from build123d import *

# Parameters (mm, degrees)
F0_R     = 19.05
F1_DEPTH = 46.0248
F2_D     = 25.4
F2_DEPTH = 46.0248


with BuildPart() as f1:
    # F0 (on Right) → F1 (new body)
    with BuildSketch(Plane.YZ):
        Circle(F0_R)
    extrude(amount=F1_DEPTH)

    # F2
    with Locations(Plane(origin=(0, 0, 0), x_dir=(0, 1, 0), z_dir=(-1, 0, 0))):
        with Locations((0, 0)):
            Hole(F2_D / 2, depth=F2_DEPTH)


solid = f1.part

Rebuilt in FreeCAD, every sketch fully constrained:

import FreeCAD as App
import Part
import Sketcher
from FreeCAD import Vector
Q = App.Units.Quantity

doc = App.newDocument("Part")
body = doc.addObject("PartDesign::Body", "Body")

sketch1 = body.newObject("Sketcher::SketchObject", "Sketch")
sketch1.AttachmentSupport = (doc.getObject("YZ_Plane"), [""])
sketch1.MapMode = "FlatFace"
sketch1.addGeometry(Part.Circle(Vector(0, 0, 0), Vector(0, 0, 1), 19), False)
sketch1.addConstraint(Sketcher.Constraint("Coincident", 0, 3, -1, 1))
sketch1.addConstraint(Sketcher.Constraint("Diameter", 0, Q("1.5 in")))
pad1 = body.newObject("PartDesign::Pad", "Pad")
pad1.Profile = sketch1
pad1.Length = Q("1.812 in")

sketch2 = body.newObject("Sketcher::SketchObject", "Sketch001")
sketch2.AttachmentSupport = (doc.getObject("YZ_Plane"), [""])
sketch2.MapMode = "FlatFace"
sketch2.addGeometry(Part.Circle(Vector(0, 0, 0), Vector(0, 0, 1), 13), False)
sketch2.addConstraint(Sketcher.Constraint("Coincident", 0, 3, -1, 1))
sketch2.addConstraint(Sketcher.Constraint("Diameter", 0, Q("1 in")))
doc.recompute()
hole = body.newObject("PartDesign::Hole", "Hole")
hole.Profile = sketch2
hole.ThreadType = "None"
hole.Diameter = Q("1 in")
hole.DepthType = "Dimension"
hole.Depth = Q("1.812 in")
hole.DrillPoint = "Flat"
hole.Reversed = True

doc.recompute()
